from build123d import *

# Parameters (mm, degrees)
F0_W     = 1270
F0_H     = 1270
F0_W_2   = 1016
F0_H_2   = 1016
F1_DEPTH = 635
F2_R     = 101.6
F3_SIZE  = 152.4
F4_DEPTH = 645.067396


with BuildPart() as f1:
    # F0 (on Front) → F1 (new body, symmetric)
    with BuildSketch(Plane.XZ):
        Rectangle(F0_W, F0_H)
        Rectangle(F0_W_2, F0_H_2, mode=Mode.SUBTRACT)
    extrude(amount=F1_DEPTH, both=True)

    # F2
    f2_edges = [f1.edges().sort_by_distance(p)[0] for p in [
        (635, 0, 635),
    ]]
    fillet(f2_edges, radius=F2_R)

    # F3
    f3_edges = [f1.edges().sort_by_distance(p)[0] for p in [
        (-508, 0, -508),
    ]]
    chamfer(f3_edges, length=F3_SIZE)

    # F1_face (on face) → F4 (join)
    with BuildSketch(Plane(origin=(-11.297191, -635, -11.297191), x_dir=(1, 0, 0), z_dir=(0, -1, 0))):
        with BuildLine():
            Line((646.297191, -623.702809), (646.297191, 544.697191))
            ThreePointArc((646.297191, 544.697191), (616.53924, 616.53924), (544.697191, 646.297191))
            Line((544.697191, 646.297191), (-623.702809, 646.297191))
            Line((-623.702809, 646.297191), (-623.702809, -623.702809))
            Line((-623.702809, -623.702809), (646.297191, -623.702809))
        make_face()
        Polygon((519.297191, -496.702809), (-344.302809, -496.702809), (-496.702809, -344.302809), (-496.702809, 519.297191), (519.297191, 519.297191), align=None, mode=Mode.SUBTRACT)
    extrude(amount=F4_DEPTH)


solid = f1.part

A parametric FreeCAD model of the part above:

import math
import FreeCAD as App
import Part
import Sketcher
from FreeCAD import Vector
Q = App.Units.Quantity


def edges_at(feature, points):
    """Names of the edges that pass closest to the given points."""
    edges = feature.Shape.Edges
    near = lambda p: min(range(len(edges)), key=lambda i: edges[i].distToShape(Part.Vertex(*p))[0])
    return sorted({f"Edge{near(p) + 1}" for p in points})


def add_polygon(sketch, points):
    """Adds a closed chain of lines whose ends are joined by coincident constraints."""
    first, n = sketch.GeometryCount, len(points)
    for a, b in zip(points, points[1:] + points[:1]):
        sketch.addGeometry(Part.LineSegment(App.Vector(*a, 0), App.Vector(*b, 0)), False)
    for i in range(n):
        sketch.addConstraint(Sketcher.Constraint("Coincident", first + i, 2, first + (i + 1) % n, 1))

doc = App.newDocument("Part")
params = doc.addObject("Spreadsheet::Sheet", "Params")
for row, (alias, value) in enumerate([
    ("sketch1_width", "50 in"),
    ("sketch1_width2", "40 in"),
    ("pad1_length", "50 in"),
    ("fillet_radius", "4 in"),
    ("chamfer_size", "6 in"),
    ("sketch2_radius", "4 in"),
    ("sketch2_width", "46 in"),
    ("sketch2_width2", "34 in"),
    ("sketch2_width3", "40 in"),
    ("pad2_length", "645.067396 mm"),
], start=1):
    params.set(f"A{row}", alias)
    params.set(f"B{row}", "=" + value)
    params.setAlias(f"B{row}", alias)

body = doc.addObject("PartDesign::Body", "Body")

# Sketch on XZ plane
sketch1 = body.newObject("Sketcher::SketchObject", "Sketch")
sketch1.AttachmentSupport = (doc.getObject("XZ_Plane"), [""])
sketch1.MapMode = "FlatFace"
add_polygon(sketch1, [(-635, 635), (-635, -635), (635, -635), (635, 635)])  # lines 0-3
add_polygon(sketch1, [(508, -508), (-508, -508), (-508, 508), (508, 508)])  # lines 4-7
sketch1.addConstraint(Sketcher.Constraint("Vertical", 0))
sketch1.addConstraint(Sketcher.Constraint("Horizontal", 1))
sketch1.addConstraint(Sketcher.Constraint("Vertical", 2))
sketch1.addConstraint(Sketcher.Constraint("Horizontal", 3))
sketch1.addConstraint(Sketcher.Constraint("Horizontal", 4))
sketch1.addConstraint(Sketcher.Constraint("Vertical", 5))
sketch1.addConstraint(Sketcher.Constraint("Horizontal", 6))
sketch1.addConstraint(Sketcher.Constraint("Vertical", 7))
sketch1.addConstraint(Sketcher.Constraint("Symmetric", 0, 2, 2, 2, -1, 1))
sketch1.addConstraint(Sketcher.Constraint("Symmetric", 4, 2, 6, 2, -1, 1))
sketch1.addConstraint(Sketcher.Constraint("Equal", 3, 0))
sketch1.addConstraint(Sketcher.Constraint("Equal", 6, 5))
sketch1.addConstraint(Sketcher.Constraint("DistanceX", 1, 1, 1, 2, Q("50 in")))
sketch1.addConstraint(Sketcher.Constraint("DistanceX", 4, 2, 4, 1, Q("40 in")))
sketch1.setExpression("Constraints[20]", "Params.sketch1_width")
sketch1.setExpression("Constraints[21]", "Params.sketch1_width2")
pad1 = body.newObject("PartDesign::Pad", "Pad")
pad1.Profile = sketch1
pad1.setExpression("Length", "Params.pad1_length")
pad1.Midplane = True
doc.recompute()

fillet = body.newObject("PartDesign::Fillet", "Fillet")
fillet.Base = (pad1, edges_at(pad1, [(635, 0, 635)]))
fillet.setExpression("Radius", "Params.fillet_radius")
doc.recompute()

chamfer = body.newObject("PartDesign::Chamfer", "Chamfer")
chamfer.Base = (fillet, edges_at(fillet, [(-508, 0, -508)]))
chamfer.setExpression("Size", "Params.chamfer_size")

# Sketch on XZ plane
sketch2 = body.newObject("Sketcher::SketchObject", "Sketch001")
sketch2.AttachmentSupport = (doc.getObject("XZ_Plane"), [""])
sketch2.MapMode = "FlatFace"
sketch2.AttachmentOffset = App.Placement(Vector(0, 0, 25 * 25.4), App.Rotation())
sketch2.addGeometry(Part.LineSegment(Vector(635, -635, 0), Vector(635, 533.4, 0)), False)  # 0
sketch2.addGeometry(Part.ArcOfCircle(Part.Circle(Vector(533.4, 533.4, 0), Vector(0, 0, 1), 101.6), math.radians(0), math.radians(90)), False)  # 1
sketch2.addGeometry(Part.LineSegment(Vector(533.4, 635, 0), Vector(-635, 635, 0)), False)  # 2
sketch2.addGeometry(Part.LineSegment(Vector(-635, 635, 0), Vector(-635, -635, 0)), False)  # 3
sketch2.addGeometry(Part.LineSegment(Vector(-635, -635, 0), Vector(635, -635, 0)), False)  # 4
add_polygon(sketch2, [(508, 508), (508, -508), (-355.6, -508), (-508, -355.6), (-508, 508)])  # lines 5-9
sketch2.addConstraint(Sketcher.Constraint("Tangent", 0, 2, 1, 1))
sketch2.addConstraint(Sketcher.Constraint("Tangent", 1, 2, 2, 1))
sketch2.addConstraint(Sketcher.Constraint("Coincident", 2, 2, 3, 1))
sketch2.addConstraint(Sketcher.Constraint("Coincident", 3, 2, 4, 1))
sketch2.addConstraint(Sketcher.Constraint("Coincident", 4, 2, 0, 1))
sketch2.addConstraint(Sketcher.Constraint("Vertical", 0))
sketch2.addConstraint(Sketcher.Constraint("Horizontal", 2))
sketch2.addConstraint(Sketcher.Constraint("Vertical", 3))
sketch2.addConstraint(Sketcher.Constraint("Horizontal", 4))
sketch2.addConstraint(Sketcher.Constraint("Vertical", 5))
sketch2.addConstraint(Sketcher.Constraint("Horizontal", 6))
sketch2.addConstraint(Sketcher.Constraint("Vertical", 8))
sketch2.addConstraint(Sketcher.Constraint("Horizontal", 9))
sketch2.addConstraint(Sketcher.Constraint("Symmetric", 2, 2, 4, 2, -1, 1))
sketch2.addConstraint(Sketcher.Constraint("Symmetric", 5, 2, 8, 2, -1, 1))
sketch2.addConstraint(Sketcher.Constraint("Equal", 2, 0))
sketch2.addConstraint(Sketcher.Constraint("Equal", 9, 5))
sketch2.addConstraint(Sketcher.Constraint("Equal", 6, 8))
sketch2.addConstraint(Sketcher.Constraint("Radius", 1, Q("4 in")))
sketch2.addConstraint(Sketcher.Constraint("DistanceX", 2, 2, 2, 1, Q("46 in")))
sketch2.addConstraint(Sketcher.Constraint("DistanceX", 6, 2, 6, 1, Q("34 in")))
sketch2.addConstraint(Sketcher.Constraint("DistanceX", 9, 1, 9, 2, Q("40 in")))
sketch2.setExpression("Constraints[23]", "Params.sketch2_radius")
sketch2.setExpression("Constraints[24]", "Params.sketch2_width")
sketch2.setExpression("Constraints[25]", "Params.sketch2_width2")
sketch2.setExpression("Constraints[26]", "Params.sketch2_width3")
pad2 = body.newObject("PartDesign::Pad", "Pad001")
pad2.Profile = sketch2
pad2.setExpression("Length", "Params.pad2_length")

doc.recompute()
